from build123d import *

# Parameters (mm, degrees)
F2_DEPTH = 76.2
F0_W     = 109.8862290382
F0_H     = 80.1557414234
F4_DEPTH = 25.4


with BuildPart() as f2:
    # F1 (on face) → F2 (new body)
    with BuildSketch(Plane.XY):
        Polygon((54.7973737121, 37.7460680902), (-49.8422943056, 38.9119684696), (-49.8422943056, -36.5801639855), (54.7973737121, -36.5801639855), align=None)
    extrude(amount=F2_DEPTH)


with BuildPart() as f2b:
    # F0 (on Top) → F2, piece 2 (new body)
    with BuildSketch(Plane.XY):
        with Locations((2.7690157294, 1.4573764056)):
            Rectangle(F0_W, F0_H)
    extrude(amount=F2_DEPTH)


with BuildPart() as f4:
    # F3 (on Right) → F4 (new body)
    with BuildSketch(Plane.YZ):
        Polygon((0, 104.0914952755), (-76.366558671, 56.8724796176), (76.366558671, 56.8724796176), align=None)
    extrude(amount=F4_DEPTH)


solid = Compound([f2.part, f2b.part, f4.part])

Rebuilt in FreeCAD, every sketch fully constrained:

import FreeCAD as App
import Part
import Sketcher

V = App.Vector
Q = App.Units.Quantity


def add_polygon(sketch, points):
    """Adds a closed chain of lines whose ends are joined by coincident constraints."""
    first, n = sketch.GeometryCount, len(points)
    for a, b in zip(points, points[1:] + points[:1]):
        sketch.addGeometry(Part.LineSegment(App.Vector(*a, 0), App.Vector(*b, 0)), False)
    for i in range(n):
        sketch.addConstraint(Sketcher.Constraint("Coincident", first + i, 2, first + (i + 1) % n, 1))

doc = App.newDocument("Part")
body = doc.addObject("PartDesign::Body", "Body")

# Sketch on XY plane
sketch1 = body.newObject("Sketcher::SketchObject", "Sketch")
sketch1.AttachmentSupport = (doc.getObject("XY_Plane"), [""])
sketch1.MapMode = "FlatFace"
add_polygon(sketch1, [(55, 38), (-50, 39), (-50, -37), (55, -37)])  # lines 0-3
sketch1.addConstraint([
    Sketcher.Constraint("Vertical", 1),
    Sketcher.Constraint("Horizontal", 2),
    Sketcher.Constraint("Vertical", 3),
    Sketcher.Constraint("DistanceX", 2, 1, 2, 2, Q("104.639668 mm")),
    Sketcher.Constraint("DistanceY", 3, 2, 0, 2, Q("1.1659 mm")),
    Sketcher.Constraint("DistanceY", 1, 2, 1, 1, Q("75.492132 mm")),
    Sketcher.Constraint("DistanceY", -1, 1, 0, 2, Q("38.911968 mm")),
    Sketcher.Constraint("DistanceX", 0, 2, -1, 1, Q("49.842294 mm")),
])
pad1 = body.newObject("PartDesign::Pad", "Pad")
pad1.Profile = sketch1
pad1.Length = Q("3 in")
body2 = doc.addObject("PartDesign::Body", "Body001")

# Sketch on XY plane
sketch2 = body2.newObject("Sketcher::SketchObject", "Sketch001")
sketch2.AttachmentSupport = (doc.getObject("XY_Plane001"), [""])
sketch2.MapMode = "FlatFace"
add_polygon(sketch2, [(-52, 42), (-52, -39), (58, -39), (58, 42)])  # lines 0-3
sketch2.addConstraint([
    Sketcher.Constraint("Vertical", 0),
    Sketcher.Constraint("Horizontal", 1),
    Sketcher.Constraint("Vertical", 2),
    Sketcher.Constraint("Horizontal", 3),
    Sketcher.Constraint("DistanceX", 1, 1, 1, 2, Q("109.886229 mm")),
    Sketcher.Constraint("DistanceY", 0, 2, 0, 1, Q("80.155741 mm")),
    Sketcher.Constraint("DistanceX", 0, 2, -1, 1, Q("52.174099 mm")),
    Sketcher.Constraint("DistanceY", 0, 2, -1, 1, Q("38.620494 mm")),
])
pad2 = body2.newObject("PartDesign::Pad", "Pad001")
pad2.Profile = sketch2
pad2.Length = Q("3 in")
body3 = doc.addObject("PartDesign::Body", "Body002")

# Sketch on YZ plane
sketch3 = body3.newObject("Sketcher::SketchObject", "Sketch002")
sketch3.AttachmentSupport = (doc.getObject("YZ_Plane002"), [""])
sketch3.MapMode = "FlatFace"
add_polygon(sketch3, [(0, 104), (-76, 57), (76, 57)])  # lines 0-2
sketch3.addConstraint([
    Sketcher.Constraint("Horizontal", 1),
    Sketcher.Constraint("PointOnObject", 2, 2, -2),
    Sketcher.Constraint("Equal", 0, 2),
    Sketcher.Constraint("DistanceX", 1, 1, 1, 2, Q("152.733117 mm")),
    Sketcher.Constraint("DistanceY", -1, 1, 0, 2, Q("56.87248 mm")),
    Sketcher.Constraint("Distance", 0, Q("89.785782 mm")),
])
pad3 = body3.newObject("PartDesign::Pad", "Pad002")
pad3.Profile = sketch3
pad3.Length = Q("1 in")

doc.recompute()
